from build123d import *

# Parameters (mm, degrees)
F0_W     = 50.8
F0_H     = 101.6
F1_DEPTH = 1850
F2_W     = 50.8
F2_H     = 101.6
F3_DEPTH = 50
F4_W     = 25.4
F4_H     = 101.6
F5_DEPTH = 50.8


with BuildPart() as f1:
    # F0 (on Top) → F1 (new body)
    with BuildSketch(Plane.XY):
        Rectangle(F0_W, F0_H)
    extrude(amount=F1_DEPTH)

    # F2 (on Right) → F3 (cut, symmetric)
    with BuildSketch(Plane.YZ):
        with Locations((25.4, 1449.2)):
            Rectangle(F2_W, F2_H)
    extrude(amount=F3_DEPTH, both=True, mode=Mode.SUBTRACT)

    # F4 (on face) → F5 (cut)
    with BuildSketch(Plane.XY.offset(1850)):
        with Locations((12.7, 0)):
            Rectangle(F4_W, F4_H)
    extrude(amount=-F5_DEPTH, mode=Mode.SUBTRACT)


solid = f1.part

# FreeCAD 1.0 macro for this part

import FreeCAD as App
import Part
import Sketcher

V = App.Vector
Q = App.Units.Quantity

doc = App.newDocument("Part")
body = doc.addObject("PartDesign::Body", "Body")

# Sketch on XY plane
sketch1 = doc.addObject("Sketcher::SketchObject", "Sketch")
body.addObject(sketch1)
sketch1.AttachmentSupport = (doc.XY_Plane, [""])
sketch1.MapMode = "FlatFace"
sketch1.addGeometry([
    Part.LineSegment(V(-25, 51, 0), V(-25, -51, 0)),
    Part.LineSegment(V(-25, -51, 0), V(25, -51, 0)),
    Part.LineSegment(V(25, -51, 0), V(25, 51, 0)),
    Part.LineSegment(V(25, 51, 0), V(-25, 51, 0)),
], False)
sketch1.addConstraint([
    Sketcher.Constraint("Coincident", 0, 2, 1, 1),
    Sketcher.Constraint("Coincident", 1, 2, 2, 1),
    Sketcher.Constraint("Coincident", 2, 2, 3, 1),
    Sketcher.Constraint("Coincident", 3, 2, 0, 1),
    Sketcher.Constraint("Vertical", 0),
    Sketcher.Constraint("Horizontal", 1),
    Sketcher.Constraint("Vertical", 2),
    Sketcher.Constraint("Horizontal", 3),
    Sketcher.Constraint("Symmetric", 0, 2, 2, 2, -1, 1),
    Sketcher.Constraint("DistanceX", 1, 1, 1, 2, Q("2 in")),
    Sketcher.Constraint("DistanceY", 0, 2, 0, 1, Q("4 in")),
])
pad1 = doc.addObject("PartDesign::Pad", "Pad")
body.addObject(pad1)
pad1.Profile = sketch1
pad1.Length = 1850

# Sketch on YZ plane
sketch2 = doc.addObject("Sketcher::SketchObject", "Sketch001")
body.addObject(sketch2)
sketch2.AttachmentSupport = (doc.YZ_Plane, [""])
sketch2.MapMode = "FlatFace"
sketch2.addGeometry([
    Part.LineSegment(V(0, 1500, 0), V(0, 1398, 0)),
    Part.LineSegment(V(0, 1398, 0), V(51, 1398, 0)),
    Part.LineSegment(V(51, 1398, 0), V(51, 1500, 0)),
    Part.LineSegment(V(51, 1500, 0), V(0, 1500, 0)),
], False)
sketch2.addConstraint([
    Sketcher.Constraint("Coincident", 0, 2, 1, 1),
    Sketcher.Constraint("Coincident", 1, 2, 2, 1),
    Sketcher.Constraint("Coincident", 2, 2, 3, 1),
    Sketcher.Constraint("Coincident", 3, 2, 0, 1),
    Sketcher.Constraint("Vertical", 0),
    Sketcher.Constraint("Horizontal", 1),
    Sketcher.Constraint("Vertical", 2),
    Sketcher.Constraint("Horizontal", 3),
    Sketcher.Constraint("PointOnObject", 0, 2, -2),
    Sketcher.Constraint("DistanceX", 1, 1, 1, 2, Q("2 in")),
    Sketcher.Constraint("DistanceY", 0, 2, 0, 1, Q("4 in")),
    Sketcher.Constraint("DistanceY", -1, 1, 0, 2, Q("1398.4 mm")),
])
pocket1 = doc.addObject("PartDesign::Pocket", "Pocket")
body.addObject(pocket1)
pocket1.Profile = sketch2
pocket1.Length = 100
pocket1.Midplane = True

# Sketch on XY plane
sketch3 = doc.addObject("Sketcher::SketchObject", "Sketch002")
body.addObject(sketch3)
sketch3.AttachmentSupport = (doc.XY_Plane, [""])
sketch3.MapMode = "FlatFace"
sketch3.AttachmentOffset = App.Placement(V(0, 0, 1850), App.Rotation())
sketch3.addGeometry([
    Part.LineSegment(V(0, 51, 0), V(0, -51, 0)),
    Part.LineSegment(V(0, -51, 0), V(25, -51, 0)),
    Part.LineSegment(V(25, -51, 0), V(25, 51, 0)),
    Part.LineSegment(V(25, 51, 0), V(0, 51, 0)),
], False)
sketch3.addConstraint([
    Sketcher.Constraint("Coincident", 0, 2, 1, 1),
    Sketcher.Constraint("Coincident", 1, 2, 2, 1),
    Sketcher.Constraint("Coincident", 2, 2, 3, 1),
    Sketcher.Constraint("Coincident", 3, 2, 0, 1),
    Sketcher.Constraint("Vertical", 0),
    Sketcher.Constraint("Horizontal", 1),
    Sketcher.Constraint("Vertical", 2),
    Sketcher.Constraint("Horizontal", 3),
    Sketcher.Constraint("Symmetric", 0, 2, 3, 2, -1, 1),
    Sketcher.Constraint("DistanceX", 1, 1, 1, 2, Q("1 in")),
    Sketcher.Constraint("DistanceY", 0, 2, 0, 1, Q("4 in")),
])
pocket2 = doc.addObject("PartDesign::Pocket", "Pocket001")
body.addObject(pocket2)
pocket2.Profile = sketch3
pocket2.Length = Q("2 in")

doc.recompute()
